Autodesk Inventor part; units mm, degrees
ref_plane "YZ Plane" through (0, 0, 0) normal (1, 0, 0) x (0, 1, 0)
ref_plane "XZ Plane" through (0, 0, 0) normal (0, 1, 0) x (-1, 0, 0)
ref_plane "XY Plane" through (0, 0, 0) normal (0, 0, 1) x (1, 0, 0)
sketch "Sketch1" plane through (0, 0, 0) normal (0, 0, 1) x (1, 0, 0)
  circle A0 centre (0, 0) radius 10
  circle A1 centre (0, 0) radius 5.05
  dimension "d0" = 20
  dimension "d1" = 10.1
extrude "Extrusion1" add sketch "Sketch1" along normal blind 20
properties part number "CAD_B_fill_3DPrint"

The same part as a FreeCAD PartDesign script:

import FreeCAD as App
import Part
import Sketcher

V = App.Vector

doc = App.newDocument("Part")
body = doc.addObject("PartDesign::Body", "Body")

sketch1 = body.newObject("Sketcher::SketchObject", "Sketch")
sketch1.AttachmentSupport = (doc.getObject("XY_Plane"), [""])
sketch1.MapMode = "FlatFace"
sketch1.addGeometry([
    Part.Circle(V(0, 0, 0), V(0, 0, 1), 10),
    Part.Circle(V(0, 0, 0), V(0, 0, 1), 5.05),
], False)
sketch1.addConstraint([
    Sketcher.Constraint("Coincident", 0, 3, -1, 1),
    Sketcher.Constraint("Coincident", 1, 3, -1, 1),
    Sketcher.Constraint("Diameter", 0, 20.0),
    Sketcher.Constraint("Diameter", 1, 10.1),
])
pad1 = body.newObject("PartDesign::Pad", "Pad")
pad1.Profile = sketch1
pad1.Length = 20

doc.recompute()
